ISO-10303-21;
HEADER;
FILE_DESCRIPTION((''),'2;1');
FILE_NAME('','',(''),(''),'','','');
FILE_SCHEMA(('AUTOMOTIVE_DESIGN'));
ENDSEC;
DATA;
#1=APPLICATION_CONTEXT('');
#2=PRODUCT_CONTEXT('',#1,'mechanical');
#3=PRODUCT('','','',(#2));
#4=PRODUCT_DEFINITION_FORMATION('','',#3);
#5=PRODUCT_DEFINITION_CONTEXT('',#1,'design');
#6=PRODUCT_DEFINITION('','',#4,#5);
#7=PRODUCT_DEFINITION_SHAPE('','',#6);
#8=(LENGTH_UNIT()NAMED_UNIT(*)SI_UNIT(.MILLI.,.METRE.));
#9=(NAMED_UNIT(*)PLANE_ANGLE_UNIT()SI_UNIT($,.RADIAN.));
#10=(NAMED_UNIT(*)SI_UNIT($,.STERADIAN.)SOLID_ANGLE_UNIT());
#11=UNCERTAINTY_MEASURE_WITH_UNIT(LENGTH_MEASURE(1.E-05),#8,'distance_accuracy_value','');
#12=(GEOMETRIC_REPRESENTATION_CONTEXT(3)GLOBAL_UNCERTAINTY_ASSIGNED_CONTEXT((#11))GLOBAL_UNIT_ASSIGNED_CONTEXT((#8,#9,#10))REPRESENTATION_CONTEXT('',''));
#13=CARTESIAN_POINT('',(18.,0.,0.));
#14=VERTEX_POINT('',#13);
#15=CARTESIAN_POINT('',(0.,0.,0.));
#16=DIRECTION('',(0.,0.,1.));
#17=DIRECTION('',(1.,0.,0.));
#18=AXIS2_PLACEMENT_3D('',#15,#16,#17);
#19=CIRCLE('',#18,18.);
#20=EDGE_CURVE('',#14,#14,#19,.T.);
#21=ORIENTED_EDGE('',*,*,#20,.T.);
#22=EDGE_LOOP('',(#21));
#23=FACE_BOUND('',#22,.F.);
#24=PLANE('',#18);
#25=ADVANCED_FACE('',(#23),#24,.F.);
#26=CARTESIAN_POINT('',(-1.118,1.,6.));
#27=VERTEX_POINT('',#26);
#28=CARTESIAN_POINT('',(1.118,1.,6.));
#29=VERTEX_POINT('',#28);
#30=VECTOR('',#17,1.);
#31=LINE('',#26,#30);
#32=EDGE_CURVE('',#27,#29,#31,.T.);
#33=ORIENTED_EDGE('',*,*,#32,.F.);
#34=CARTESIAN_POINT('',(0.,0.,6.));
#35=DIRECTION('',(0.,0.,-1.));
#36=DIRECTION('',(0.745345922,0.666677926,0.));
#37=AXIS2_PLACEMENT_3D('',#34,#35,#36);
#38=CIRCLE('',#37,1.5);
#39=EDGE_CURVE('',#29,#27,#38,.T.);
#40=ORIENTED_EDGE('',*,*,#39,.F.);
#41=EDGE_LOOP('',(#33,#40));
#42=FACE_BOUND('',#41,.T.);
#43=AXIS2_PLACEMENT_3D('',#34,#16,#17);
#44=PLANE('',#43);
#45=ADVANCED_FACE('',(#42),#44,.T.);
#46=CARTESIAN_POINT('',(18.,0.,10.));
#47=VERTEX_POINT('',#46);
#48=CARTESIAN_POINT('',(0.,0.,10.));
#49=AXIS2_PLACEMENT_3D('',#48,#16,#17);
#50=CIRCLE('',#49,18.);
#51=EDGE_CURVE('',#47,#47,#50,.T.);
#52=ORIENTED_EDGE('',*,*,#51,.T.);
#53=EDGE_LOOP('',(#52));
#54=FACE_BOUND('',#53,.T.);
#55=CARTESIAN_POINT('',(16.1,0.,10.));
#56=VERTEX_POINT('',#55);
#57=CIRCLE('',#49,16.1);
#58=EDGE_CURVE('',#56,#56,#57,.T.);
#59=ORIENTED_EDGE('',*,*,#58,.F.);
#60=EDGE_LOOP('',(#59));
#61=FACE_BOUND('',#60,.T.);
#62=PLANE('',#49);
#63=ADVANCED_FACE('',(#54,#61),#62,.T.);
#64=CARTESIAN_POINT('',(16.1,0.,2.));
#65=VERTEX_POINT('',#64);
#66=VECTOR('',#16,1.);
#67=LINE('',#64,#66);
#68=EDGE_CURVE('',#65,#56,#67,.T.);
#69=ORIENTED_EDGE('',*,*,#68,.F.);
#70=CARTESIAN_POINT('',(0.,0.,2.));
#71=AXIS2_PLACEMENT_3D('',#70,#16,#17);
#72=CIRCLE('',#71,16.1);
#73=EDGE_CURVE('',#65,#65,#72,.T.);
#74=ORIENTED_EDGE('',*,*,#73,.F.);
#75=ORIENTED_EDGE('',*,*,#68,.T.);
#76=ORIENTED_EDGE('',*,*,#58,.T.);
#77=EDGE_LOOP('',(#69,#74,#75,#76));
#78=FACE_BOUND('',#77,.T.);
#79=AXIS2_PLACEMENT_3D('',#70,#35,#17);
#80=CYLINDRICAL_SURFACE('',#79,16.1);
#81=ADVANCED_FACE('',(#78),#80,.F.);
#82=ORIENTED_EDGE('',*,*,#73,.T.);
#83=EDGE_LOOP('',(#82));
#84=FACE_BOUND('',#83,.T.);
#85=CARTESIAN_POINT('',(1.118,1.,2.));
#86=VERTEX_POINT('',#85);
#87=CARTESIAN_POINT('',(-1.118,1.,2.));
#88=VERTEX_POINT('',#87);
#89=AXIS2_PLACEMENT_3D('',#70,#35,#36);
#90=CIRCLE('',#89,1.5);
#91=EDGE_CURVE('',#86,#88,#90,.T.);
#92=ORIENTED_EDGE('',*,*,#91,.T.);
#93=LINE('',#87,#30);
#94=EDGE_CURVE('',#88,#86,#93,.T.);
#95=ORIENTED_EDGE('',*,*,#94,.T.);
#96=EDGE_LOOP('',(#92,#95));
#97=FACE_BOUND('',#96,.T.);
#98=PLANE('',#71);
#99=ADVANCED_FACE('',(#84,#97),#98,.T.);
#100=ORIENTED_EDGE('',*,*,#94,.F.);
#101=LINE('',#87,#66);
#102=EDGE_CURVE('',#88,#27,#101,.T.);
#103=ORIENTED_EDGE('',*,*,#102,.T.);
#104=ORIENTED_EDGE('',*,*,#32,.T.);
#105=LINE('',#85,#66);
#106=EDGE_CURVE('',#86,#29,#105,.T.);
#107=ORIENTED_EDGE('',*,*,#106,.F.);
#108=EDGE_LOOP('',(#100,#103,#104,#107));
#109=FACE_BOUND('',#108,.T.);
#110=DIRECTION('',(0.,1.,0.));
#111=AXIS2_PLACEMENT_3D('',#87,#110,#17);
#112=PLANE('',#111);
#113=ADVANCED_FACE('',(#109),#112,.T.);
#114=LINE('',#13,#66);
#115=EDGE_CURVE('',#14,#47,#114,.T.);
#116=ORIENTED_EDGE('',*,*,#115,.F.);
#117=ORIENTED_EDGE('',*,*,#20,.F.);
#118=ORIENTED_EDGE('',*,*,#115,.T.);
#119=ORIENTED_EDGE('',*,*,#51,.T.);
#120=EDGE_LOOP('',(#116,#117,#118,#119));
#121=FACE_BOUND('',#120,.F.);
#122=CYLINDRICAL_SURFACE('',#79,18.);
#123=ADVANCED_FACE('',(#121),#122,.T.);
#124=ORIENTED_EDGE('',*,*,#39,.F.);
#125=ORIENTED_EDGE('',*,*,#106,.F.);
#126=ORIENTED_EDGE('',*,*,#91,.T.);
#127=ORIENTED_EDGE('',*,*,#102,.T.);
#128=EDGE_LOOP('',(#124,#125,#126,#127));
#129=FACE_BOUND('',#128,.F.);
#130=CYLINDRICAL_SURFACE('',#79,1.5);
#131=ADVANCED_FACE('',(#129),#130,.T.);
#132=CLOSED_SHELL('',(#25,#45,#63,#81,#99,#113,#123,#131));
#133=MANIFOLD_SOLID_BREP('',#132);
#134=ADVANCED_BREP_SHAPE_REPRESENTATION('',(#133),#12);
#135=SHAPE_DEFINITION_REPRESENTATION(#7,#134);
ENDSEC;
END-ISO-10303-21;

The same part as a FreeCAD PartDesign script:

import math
import FreeCAD as App
import Part
import Sketcher
from FreeCAD import Vector
Q = App.Units.Quantity

doc = App.newDocument("Part")
body = doc.addObject("PartDesign::Body", "Body")

# Sketch on XY plane
sketch1 = body.newObject("Sketcher::SketchObject", "Sketch")
sketch1.AttachmentSupport = (doc.getObject("XY_Plane"), [""])
sketch1.MapMode = "FlatFace"
sketch1.addGeometry(Part.Circle(Vector(0, 0, 0), Vector(0, 0, 1), 18), False)
sketch1.addConstraint([
    Sketcher.Constraint("Coincident", 0, 3, -1, 1),
    Sketcher.Constraint("Diameter", 0, Q("36 mm")),
])
pad1 = body.newObject("PartDesign::Pad", "Pad")
pad1.Profile = sketch1
pad1.Length = 2

# Sketch on XY plane
sketch2 = body.newObject("Sketcher::SketchObject", "Sketch001")
sketch2.AttachmentSupport = (doc.getObject("XY_Plane"), [""])
sketch2.MapMode = "FlatFace"
sketch2.AttachmentOffset = App.Placement(Vector(0, 0, 2), App.Rotation())
sketch2.addGeometry([
    Part.LineSegment(Vector(1.1, 1, 0), Vector(-1.1, 1, 0)),
    Part.ArcOfCircle(Part.Circle(Vector(0, 0, 0), Vector(0, 0, 1), 1.5), math.radians(138), math.radians(402)),
], False)
sketch2.addConstraint([
    Sketcher.Constraint("Coincident", 0, 1, 1, 2),
    Sketcher.Constraint("Coincident", 1, 1, 0, 2),
    Sketcher.Constraint("Horizontal", 0),
    Sketcher.Constraint("Coincident", 1, 3, -1, 1),
    Sketcher.Constraint("Radius", 1, Q("1.5 mm")),
    Sketcher.Constraint("DistanceY", -1, 1, 0, 1, Q("1 mm")),
])
pad2 = body.newObject("PartDesign::Pad", "Pad001")
pad2.Profile = sketch2
pad2.Length = 4

# Sketch on XY plane
sketch3 = body.newObject("Sketcher::SketchObject", "Sketch002")
sketch3.AttachmentSupport = (doc.getObject("XY_Plane"), [""])
sketch3.MapMode = "FlatFace"
sketch3.AttachmentOffset = App.Placement(Vector(0, 0, 2), App.Rotation())
sketch3.addGeometry([
    Part.Circle(Vector(0, 0, 0), Vector(0, 0, 1), 18),
    Part.Circle(Vector(0, 0, 0), Vector(0, 0, 1), 16),
], False)
sketch3.addConstraint([
    Sketcher.Constraint("Coincident", 0, 3, -1, 1),
    Sketcher.Constraint("Coincident", 1, 3, -1, 1),
    Sketcher.Constraint("Diameter", 1, Q("32.2 mm")),
    Sketcher.Constraint("Diameter", 0, Q("36 mm")),
])
pad3 = body.newObject("PartDesign::Pad", "Pad002")
pad3.Profile = sketch3
pad3.Length = 8

doc.recompute()
